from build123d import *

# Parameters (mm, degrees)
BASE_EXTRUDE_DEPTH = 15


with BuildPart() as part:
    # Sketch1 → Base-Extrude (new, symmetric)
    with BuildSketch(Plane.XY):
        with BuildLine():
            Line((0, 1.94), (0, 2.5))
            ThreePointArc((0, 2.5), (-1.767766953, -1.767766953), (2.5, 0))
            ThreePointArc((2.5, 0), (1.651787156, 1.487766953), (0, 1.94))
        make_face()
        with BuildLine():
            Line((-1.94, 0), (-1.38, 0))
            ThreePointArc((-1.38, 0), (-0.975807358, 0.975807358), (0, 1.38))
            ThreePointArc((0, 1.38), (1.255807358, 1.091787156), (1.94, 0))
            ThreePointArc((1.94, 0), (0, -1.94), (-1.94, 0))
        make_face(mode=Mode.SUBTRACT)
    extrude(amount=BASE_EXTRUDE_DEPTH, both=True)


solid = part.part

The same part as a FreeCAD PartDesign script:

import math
import FreeCAD as App
import Part
import Sketcher

V = App.Vector

doc = App.newDocument("Part")
body = doc.addObject("PartDesign::Body", "Body")

sketch1 = body.newObject("Sketcher::SketchObject", "Sketch")
sketch1.AttachmentSupport = (doc.getObject("XY_Plane"), [""])
sketch1.MapMode = "FlatFace"
sketch1.addGeometry([
    Part.LineSegment(V(0, 1.9, 0), V(0, 2.5, 0)),
    Part.ArcOfCircle(Part.Circle(V(0, 0, 0), V(0, 0, 1), 2.5), math.radians(90), math.radians(360)),
    Part.ArcOfCircle(Part.Circle(V(0.3, -0.3, 0), V(0, 0, 1), 2.2), math.radians(7), math.radians(97)),
    Part.ArcOfCircle(Part.Circle(V(0, 0, 0), V(0, 0, 1), 1.9), math.radians(180), math.radians(360)),
    Part.LineSegment(V(-1.9, 0, 0), V(-1.4, 0, 0)),
    Part.ArcOfCircle(Part.Circle(V(0, 0, 0), V(0, 0, 1), 1.4), math.radians(90), math.radians(180)),
    Part.ArcOfCircle(Part.Circle(V(0.3, -0.3, 0), V(0, 0, 1), 1.7), math.radians(10), math.radians(100)),
], False)
sketch1.addConstraint([
    Sketcher.Constraint("Coincident", 0, 2, 1, 1),
    Sketcher.Constraint("Coincident", 1, 2, 2, 1),
    Sketcher.Constraint("Coincident", 2, 2, 0, 1),
    Sketcher.Constraint("Coincident", 3, 1, 4, 1),
    Sketcher.Constraint("Coincident", 4, 2, 5, 2),
    Sketcher.Constraint("Coincident", 5, 1, 6, 2),
    Sketcher.Constraint("Coincident", 6, 1, 3, 2),
    Sketcher.Constraint("Vertical", 0),
    Sketcher.Constraint("Horizontal", 4),
    Sketcher.Constraint("Coincident", 1, 3, -1, 1),
    Sketcher.Constraint("Coincident", 3, 3, -1, 1),
    Sketcher.Constraint("Coincident", 5, 3, -1, 1),
    Sketcher.Constraint("Coincident", 6, 3, 2, 3),
    Sketcher.Constraint("PointOnObject", 0, 2, -2),
    Sketcher.Constraint("PointOnObject", 1, 2, -1),
    Sketcher.Constraint("PointOnObject", 3, 1, -1),
    Sketcher.Constraint("PointOnObject", 5, 1, -2),
    Sketcher.Constraint("PointOnObject", 6, 1, -1),
    Sketcher.Constraint("Equal", 4, 0),
    Sketcher.Constraint("Radius", 1, 2.5),
    Sketcher.Constraint("Radius", 3, 1.94),
    Sketcher.Constraint("Radius", 5, 1.38),
])
pad1 = body.newObject("PartDesign::Pad", "Pad")
pad1.Profile = sketch1
pad1.Length = 30
pad1.Midplane = True

doc.recompute()
